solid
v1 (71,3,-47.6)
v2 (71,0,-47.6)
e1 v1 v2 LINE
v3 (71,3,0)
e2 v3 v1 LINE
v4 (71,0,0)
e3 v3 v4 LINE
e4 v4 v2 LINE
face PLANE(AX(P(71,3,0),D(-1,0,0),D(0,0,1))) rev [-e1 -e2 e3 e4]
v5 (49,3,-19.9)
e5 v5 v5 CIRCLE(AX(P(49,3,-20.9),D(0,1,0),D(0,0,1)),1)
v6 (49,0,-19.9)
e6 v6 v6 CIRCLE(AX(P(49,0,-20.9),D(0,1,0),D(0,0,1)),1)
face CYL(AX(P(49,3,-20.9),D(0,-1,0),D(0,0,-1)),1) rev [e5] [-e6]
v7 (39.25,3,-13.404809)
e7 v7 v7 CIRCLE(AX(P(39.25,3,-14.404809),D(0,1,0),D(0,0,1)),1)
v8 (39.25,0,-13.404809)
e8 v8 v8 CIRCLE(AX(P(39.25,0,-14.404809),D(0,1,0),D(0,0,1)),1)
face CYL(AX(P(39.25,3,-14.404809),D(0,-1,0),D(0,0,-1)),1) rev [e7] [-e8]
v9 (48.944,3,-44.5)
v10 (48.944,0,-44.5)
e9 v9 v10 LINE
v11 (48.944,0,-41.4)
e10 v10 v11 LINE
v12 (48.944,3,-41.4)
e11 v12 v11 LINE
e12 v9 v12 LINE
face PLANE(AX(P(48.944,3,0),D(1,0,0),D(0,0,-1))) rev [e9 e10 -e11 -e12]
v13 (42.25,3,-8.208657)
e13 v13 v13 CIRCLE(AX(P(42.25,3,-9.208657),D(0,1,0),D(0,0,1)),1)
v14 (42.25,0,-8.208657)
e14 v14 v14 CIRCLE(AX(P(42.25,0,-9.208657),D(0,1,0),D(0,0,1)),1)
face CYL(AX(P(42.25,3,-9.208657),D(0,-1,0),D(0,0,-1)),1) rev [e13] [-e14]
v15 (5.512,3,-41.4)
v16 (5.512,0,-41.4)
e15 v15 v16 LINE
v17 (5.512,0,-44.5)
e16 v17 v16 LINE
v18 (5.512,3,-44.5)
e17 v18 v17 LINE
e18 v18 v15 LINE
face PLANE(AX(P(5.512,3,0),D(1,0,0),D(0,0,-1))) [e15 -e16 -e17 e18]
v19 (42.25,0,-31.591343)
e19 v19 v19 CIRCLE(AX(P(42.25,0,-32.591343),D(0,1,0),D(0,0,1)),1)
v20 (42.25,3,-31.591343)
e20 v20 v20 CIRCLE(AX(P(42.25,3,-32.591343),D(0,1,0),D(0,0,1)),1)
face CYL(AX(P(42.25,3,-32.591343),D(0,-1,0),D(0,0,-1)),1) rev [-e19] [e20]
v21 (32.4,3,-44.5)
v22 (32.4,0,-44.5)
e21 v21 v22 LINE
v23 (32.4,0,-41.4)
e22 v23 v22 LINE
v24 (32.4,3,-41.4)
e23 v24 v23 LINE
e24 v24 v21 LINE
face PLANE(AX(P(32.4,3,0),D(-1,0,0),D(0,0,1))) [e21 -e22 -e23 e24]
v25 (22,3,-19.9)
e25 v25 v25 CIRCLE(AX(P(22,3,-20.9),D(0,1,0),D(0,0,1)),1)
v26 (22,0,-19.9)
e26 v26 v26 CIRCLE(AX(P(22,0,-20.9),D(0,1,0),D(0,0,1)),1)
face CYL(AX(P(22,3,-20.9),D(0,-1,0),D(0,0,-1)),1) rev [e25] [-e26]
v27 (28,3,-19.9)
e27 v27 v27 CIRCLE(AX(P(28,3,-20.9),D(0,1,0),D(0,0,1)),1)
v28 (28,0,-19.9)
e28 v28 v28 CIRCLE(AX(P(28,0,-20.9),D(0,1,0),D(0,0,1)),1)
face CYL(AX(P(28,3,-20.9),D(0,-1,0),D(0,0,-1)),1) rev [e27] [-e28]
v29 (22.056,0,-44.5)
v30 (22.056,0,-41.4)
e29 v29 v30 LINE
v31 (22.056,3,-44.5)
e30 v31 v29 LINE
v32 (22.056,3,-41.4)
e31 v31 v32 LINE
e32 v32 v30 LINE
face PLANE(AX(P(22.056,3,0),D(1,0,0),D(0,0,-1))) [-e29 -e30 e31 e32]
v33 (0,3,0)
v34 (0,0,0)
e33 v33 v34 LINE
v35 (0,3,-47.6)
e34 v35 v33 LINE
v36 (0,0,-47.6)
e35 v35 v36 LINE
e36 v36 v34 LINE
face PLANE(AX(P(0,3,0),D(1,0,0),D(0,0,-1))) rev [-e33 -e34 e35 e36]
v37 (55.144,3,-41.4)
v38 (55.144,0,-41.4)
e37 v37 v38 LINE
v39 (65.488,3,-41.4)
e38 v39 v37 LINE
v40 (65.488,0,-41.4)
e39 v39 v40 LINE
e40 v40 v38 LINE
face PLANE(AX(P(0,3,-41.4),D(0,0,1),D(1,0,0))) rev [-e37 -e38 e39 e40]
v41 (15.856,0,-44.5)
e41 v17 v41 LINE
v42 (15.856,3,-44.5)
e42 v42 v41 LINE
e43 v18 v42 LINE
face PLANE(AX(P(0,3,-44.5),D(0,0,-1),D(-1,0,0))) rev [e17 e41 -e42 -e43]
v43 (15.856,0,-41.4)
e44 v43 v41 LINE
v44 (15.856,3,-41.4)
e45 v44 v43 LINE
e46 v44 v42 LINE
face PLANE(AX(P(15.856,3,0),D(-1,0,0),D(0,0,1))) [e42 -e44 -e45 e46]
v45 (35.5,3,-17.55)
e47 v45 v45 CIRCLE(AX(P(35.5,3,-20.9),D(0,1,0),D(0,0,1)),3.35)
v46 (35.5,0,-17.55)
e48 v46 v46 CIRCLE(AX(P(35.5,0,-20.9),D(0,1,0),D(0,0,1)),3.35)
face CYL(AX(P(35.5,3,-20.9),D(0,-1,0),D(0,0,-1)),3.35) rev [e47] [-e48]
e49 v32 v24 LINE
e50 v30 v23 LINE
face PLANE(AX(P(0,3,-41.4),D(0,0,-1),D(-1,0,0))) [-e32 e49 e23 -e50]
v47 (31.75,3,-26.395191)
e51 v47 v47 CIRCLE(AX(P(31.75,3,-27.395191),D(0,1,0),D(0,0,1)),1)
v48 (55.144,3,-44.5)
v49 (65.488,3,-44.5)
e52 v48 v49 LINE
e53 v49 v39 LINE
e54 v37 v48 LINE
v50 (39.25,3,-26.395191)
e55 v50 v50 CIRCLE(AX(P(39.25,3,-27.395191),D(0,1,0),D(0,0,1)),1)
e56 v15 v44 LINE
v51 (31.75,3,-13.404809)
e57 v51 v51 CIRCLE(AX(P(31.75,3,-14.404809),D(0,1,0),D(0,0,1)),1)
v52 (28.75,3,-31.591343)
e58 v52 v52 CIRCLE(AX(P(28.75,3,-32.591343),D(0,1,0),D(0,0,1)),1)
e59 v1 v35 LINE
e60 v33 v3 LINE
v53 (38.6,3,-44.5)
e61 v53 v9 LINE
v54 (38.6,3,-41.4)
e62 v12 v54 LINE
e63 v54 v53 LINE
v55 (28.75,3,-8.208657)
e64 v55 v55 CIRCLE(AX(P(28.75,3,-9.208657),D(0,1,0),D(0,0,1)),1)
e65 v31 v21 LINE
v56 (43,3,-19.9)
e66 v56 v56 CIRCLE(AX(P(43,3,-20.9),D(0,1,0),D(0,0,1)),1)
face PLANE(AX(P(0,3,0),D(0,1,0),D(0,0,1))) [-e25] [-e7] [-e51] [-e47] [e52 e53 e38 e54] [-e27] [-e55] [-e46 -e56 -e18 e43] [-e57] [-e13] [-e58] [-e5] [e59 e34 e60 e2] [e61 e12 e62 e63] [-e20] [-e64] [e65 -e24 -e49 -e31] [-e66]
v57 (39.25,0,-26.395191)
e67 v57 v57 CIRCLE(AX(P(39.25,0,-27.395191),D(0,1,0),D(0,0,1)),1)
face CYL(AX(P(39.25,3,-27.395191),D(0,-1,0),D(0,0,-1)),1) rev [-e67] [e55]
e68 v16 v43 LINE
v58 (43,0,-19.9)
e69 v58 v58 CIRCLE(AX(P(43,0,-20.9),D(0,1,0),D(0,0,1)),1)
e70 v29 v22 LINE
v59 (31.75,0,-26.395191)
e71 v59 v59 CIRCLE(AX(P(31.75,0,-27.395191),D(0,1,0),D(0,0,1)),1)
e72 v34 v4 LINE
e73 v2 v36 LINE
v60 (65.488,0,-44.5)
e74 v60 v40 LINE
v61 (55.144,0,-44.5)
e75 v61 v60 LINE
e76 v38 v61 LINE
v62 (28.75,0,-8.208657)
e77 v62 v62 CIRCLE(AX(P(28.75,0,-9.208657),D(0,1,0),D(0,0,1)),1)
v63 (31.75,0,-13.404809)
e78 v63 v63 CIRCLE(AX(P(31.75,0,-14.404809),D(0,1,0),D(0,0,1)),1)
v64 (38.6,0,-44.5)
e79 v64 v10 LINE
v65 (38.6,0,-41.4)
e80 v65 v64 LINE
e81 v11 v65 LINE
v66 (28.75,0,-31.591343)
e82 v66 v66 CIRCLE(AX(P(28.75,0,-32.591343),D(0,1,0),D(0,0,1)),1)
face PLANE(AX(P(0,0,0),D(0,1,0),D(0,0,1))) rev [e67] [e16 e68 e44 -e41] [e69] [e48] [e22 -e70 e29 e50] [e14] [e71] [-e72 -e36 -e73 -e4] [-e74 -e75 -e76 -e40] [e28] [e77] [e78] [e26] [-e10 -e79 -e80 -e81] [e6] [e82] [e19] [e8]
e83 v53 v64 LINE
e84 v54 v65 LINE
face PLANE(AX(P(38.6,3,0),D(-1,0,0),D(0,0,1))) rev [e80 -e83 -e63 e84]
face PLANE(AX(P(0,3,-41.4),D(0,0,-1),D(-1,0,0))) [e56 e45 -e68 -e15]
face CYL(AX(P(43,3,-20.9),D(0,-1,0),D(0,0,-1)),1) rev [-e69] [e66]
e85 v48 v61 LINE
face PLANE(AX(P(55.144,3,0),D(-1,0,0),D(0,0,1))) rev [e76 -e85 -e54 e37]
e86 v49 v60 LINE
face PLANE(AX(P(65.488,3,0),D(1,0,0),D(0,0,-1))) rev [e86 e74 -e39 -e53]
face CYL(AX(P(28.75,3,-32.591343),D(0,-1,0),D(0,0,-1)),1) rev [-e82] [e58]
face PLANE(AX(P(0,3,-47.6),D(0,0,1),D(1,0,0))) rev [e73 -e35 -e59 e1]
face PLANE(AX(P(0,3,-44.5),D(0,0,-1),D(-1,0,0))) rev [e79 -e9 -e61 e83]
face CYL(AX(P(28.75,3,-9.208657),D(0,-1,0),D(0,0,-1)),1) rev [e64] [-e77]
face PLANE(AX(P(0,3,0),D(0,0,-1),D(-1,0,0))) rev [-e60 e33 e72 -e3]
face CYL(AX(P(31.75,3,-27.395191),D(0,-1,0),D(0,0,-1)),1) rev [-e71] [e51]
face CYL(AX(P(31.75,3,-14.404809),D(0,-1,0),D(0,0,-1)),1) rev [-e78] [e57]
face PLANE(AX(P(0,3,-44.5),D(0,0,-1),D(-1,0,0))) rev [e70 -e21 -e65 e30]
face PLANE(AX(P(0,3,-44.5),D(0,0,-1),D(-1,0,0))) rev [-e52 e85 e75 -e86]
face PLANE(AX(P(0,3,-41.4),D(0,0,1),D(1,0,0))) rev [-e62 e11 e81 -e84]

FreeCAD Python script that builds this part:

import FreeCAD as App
import Part
import Sketcher

V = App.Vector

doc = App.newDocument("Part")
params = doc.addObject("Spreadsheet::Sheet", "Params")
for row, (alias, value) in enumerate([
    ("sketch1_diameter", "2 mm"),
    ("sketch1_diameter2", "6.7 mm"),
    ("sketch1_width", "71 mm"),
    ("sketch1_height", "47.6 mm"),
    ("sketch1_height2", "3.1 mm"),
    ("pad1_length", "3 mm"),
], start=1):
    params.set(f"A{row}", alias)
    params.set(f"B{row}", "=" + value)
    params.setAlias(f"B{row}", alias)

body = doc.addObject("PartDesign::Body", "Body")

# Sketch on XZ plane
sketch1 = body.newObject("Sketcher::SketchObject", "Sketch")
sketch1.AttachmentSupport = (doc.getObject("XZ_Plane"), [""])
sketch1.MapMode = "FlatFace"
sketch1.addGeometry(Part.LineSegment(V(0, -47.6, 0), V(0, 0, 0)), False)
sketch1.addGeometry(Part.LineSegment(V(0, 0, 0), V(71, 0, 0)), False)
sketch1.addGeometry(Part.LineSegment(V(71, 0, 0), V(71, -47.6, 0)), False)
sketch1.addGeometry(Part.LineSegment(V(71, -47.6, 0), V(0, -47.6, 0)), False)
sketch1.addGeometry(Part.Circle(V(28.8, -9.2, 0), V(0, 0, 1), 1), False)
sketch1.addGeometry(Part.Circle(V(31.8, -14.4, 0), V(0, 0, 1), 1), False)
sketch1.addGeometry(Part.Circle(V(22, -20.9, 0), V(0, 0, 1), 1), False)
sketch1.addGeometry(Part.Circle(V(28, -20.9, 0), V(0, 0, 1), 1), False)
sketch1.addGeometry(Part.Circle(V(42.2, -9.2, 0), V(0, 0, 1), 1), False)
sketch1.addGeometry(Part.Circle(V(39.2, -14.4, 0), V(0, 0, 1), 1), False)
sketch1.addGeometry(Part.Circle(V(35.5, -20.9, 0), V(0, 0, 1), 3.4), False)
sketch1.addGeometry(Part.Circle(V(43, -20.9, 0), V(0, 0, 1), 1), False)
sketch1.addGeometry(Part.Circle(V(49, -20.9, 0), V(0, 0, 1), 1), False)
sketch1.addGeometry(Part.Circle(V(31.8, -27.4, 0), V(0, 0, 1), 1), False)
sketch1.addGeometry(Part.Circle(V(28.8, -32.6, 0), V(0, 0, 1), 1), False)
sketch1.addGeometry(Part.LineSegment(V(15.9, -41.4, 0), V(5.5, -41.4, 0)), False)
sketch1.addGeometry(Part.LineSegment(V(5.5, -41.4, 0), V(5.5, -44.5, 0)), False)
sketch1.addGeometry(Part.LineSegment(V(5.5, -44.5, 0), V(15.9, -44.5, 0)), False)
sketch1.addGeometry(Part.LineSegment(V(15.9, -44.5, 0), V(15.9, -41.4, 0)), False)
sketch1.addGeometry(Part.LineSegment(V(32.4, -41.4, 0), V(22.1, -41.4, 0)), False)
sketch1.addGeometry(Part.LineSegment(V(22.1, -41.4, 0), V(22.1, -44.5, 0)), False)
sketch1.addGeometry(Part.LineSegment(V(22.1, -44.5, 0), V(32.4, -44.5, 0)), False)
sketch1.addGeometry(Part.LineSegment(V(32.4, -44.5, 0), V(32.4, -41.4, 0)), False)
sketch1.addGeometry(Part.Circle(V(39.2, -27.4, 0), V(0, 0, 1), 1), False)
sketch1.addGeometry(Part.Circle(V(42.2, -32.6, 0), V(0, 0, 1), 1), False)
sketch1.addGeometry(Part.LineSegment(V(48.9, -41.4, 0), V(38.6, -41.4, 0)), False)
sketch1.addGeometry(Part.LineSegment(V(38.6, -41.4, 0), V(38.6, -44.5, 0)), False)
sketch1.addGeometry(Part.LineSegment(V(38.6, -44.5, 0), V(48.9, -44.5, 0)), False)
sketch1.addGeometry(Part.LineSegment(V(48.9, -44.5, 0), V(48.9, -41.4, 0)), False)
sketch1.addGeometry(Part.LineSegment(V(65.5, -41.4, 0), V(55.1, -41.4, 0)), False)
sketch1.addGeometry(Part.LineSegment(V(55.1, -41.4, 0), V(55.1, -44.5, 0)), False)
sketch1.addGeometry(Part.LineSegment(V(55.1, -44.5, 0), V(65.5, -44.5, 0)), False)
sketch1.addGeometry(Part.LineSegment(V(65.5, -44.5, 0), V(65.5, -41.4, 0)), False)
sketch1.addConstraint(Sketcher.Constraint("Coincident", 0, 2, 1, 1))
sketch1.addConstraint(Sketcher.Constraint("Coincident", 1, 2, 2, 1))
sketch1.addConstraint(Sketcher.Constraint("Coincident", 2, 2, 3, 1))
sketch1.addConstraint(Sketcher.Constraint("Coincident", 3, 2, 0, 1))
sketch1.addConstraint(Sketcher.Constraint("Coincident", 15, 2, 16, 1))
sketch1.addConstraint(Sketcher.Constraint("Coincident", 16, 2, 17, 1))
sketch1.addConstraint(Sketcher.Constraint("Coincident", 17, 2, 18, 1))
sketch1.addConstraint(Sketcher.Constraint("Coincident", 18, 2, 15, 1))
sketch1.addConstraint(Sketcher.Constraint("Coincident", 19, 2, 20, 1))
sketch1.addConstraint(Sketcher.Constraint("Coincident", 20, 2, 21, 1))
sketch1.addConstraint(Sketcher.Constraint("Coincident", 21, 2, 22, 1))
sketch1.addConstraint(Sketcher.Constraint("Coincident", 22, 2, 19, 1))
sketch1.addConstraint(Sketcher.Constraint("Coincident", 25, 2, 26, 1))
sketch1.addConstraint(Sketcher.Constraint("Coincident", 26, 2, 27, 1))
sketch1.addConstraint(Sketcher.Constraint("Coincident", 27, 2, 28, 1))
sketch1.addConstraint(Sketcher.Constraint("Coincident", 28, 2, 25, 1))
sketch1.addConstraint(Sketcher.Constraint("Coincident", 29, 2, 30, 1))
sketch1.addConstraint(Sketcher.Constraint("Coincident", 30, 2, 31, 1))
sketch1.addConstraint(Sketcher.Constraint("Coincident", 31, 2, 32, 1))
sketch1.addConstraint(Sketcher.Constraint("Coincident", 32, 2, 29, 1))
sketch1.addConstraint(Sketcher.Constraint("Vertical", 0))
sketch1.addConstraint(Sketcher.Constraint("Horizontal", 1))
sketch1.addConstraint(Sketcher.Constraint("Vertical", 2))
sketch1.addConstraint(Sketcher.Constraint("Horizontal", 3))
sketch1.addConstraint(Sketcher.Constraint("Horizontal", 15))
sketch1.addConstraint(Sketcher.Constraint("Vertical", 16))
sketch1.addConstraint(Sketcher.Constraint("Horizontal", 17))
sketch1.addConstraint(Sketcher.Constraint("Vertical", 18))
sketch1.addConstraint(Sketcher.Constraint("Horizontal", 19))
sketch1.addConstraint(Sketcher.Constraint("Vertical", 20))
sketch1.addConstraint(Sketcher.Constraint("Horizontal", 21))
sketch1.addConstraint(Sketcher.Constraint("Vertical", 22))
sketch1.addConstraint(Sketcher.Constraint("Horizontal", 25))
sketch1.addConstraint(Sketcher.Constraint("Vertical", 26))
sketch1.addConstraint(Sketcher.Constraint("Horizontal", 27))
sketch1.addConstraint(Sketcher.Constraint("Vertical", 28))
sketch1.addConstraint(Sketcher.Constraint("Horizontal", 29))
sketch1.addConstraint(Sketcher.Constraint("Vertical", 30))
sketch1.addConstraint(Sketcher.Constraint("Horizontal", 31))
sketch1.addConstraint(Sketcher.Constraint("Vertical", 32))
sketch1.addConstraint(Sketcher.Constraint("Coincident", 0, 2, -1, 1))
sketch1.addConstraint(Sketcher.Constraint("Equal", 4, 5))
sketch1.addConstraint(Sketcher.Constraint("Equal", 5, 6))
sketch1.addConstraint(Sketcher.Constraint("Equal", 6, 7))
sketch1.addConstraint(Sketcher.Constraint("Equal", 7, 8))
sketch1.addConstraint(Sketcher.Constraint("Equal", 8, 9))
sketch1.addConstraint(Sketcher.Constraint("Equal", 9, 11))
sketch1.addConstraint(Sketcher.Constraint("Equal", 11, 12))
sketch1.addConstraint(Sketcher.Constraint("Equal", 12, 13))
sketch1.addConstraint(Sketcher.Constraint("Equal", 13, 14))
sketch1.addConstraint(Sketcher.Constraint("Equal", 14, 23))
sketch1.addConstraint(Sketcher.Constraint("Equal", 23, 24))
sketch1.addConstraint(Sketcher.Constraint("Horizontal", 6, 3, 7, 3))
sketch1.addConstraint(Sketcher.Constraint("Horizontal", 4, 3, 8, 3))
sketch1.addConstraint(Sketcher.Constraint("Horizontal", 5, 3, 9, 3))
sketch1.addConstraint(Sketcher.Constraint("Horizontal", 7, 3, 10, 3))
sketch1.addConstraint(Sketcher.Constraint("Horizontal", 10, 3, 11, 3))
sketch1.addConstraint(Sketcher.Constraint("Horizontal", 11, 3, 12, 3))
sketch1.addConstraint(Sketcher.Constraint("Horizontal", 13, 3, 23, 3))
sketch1.addConstraint(Sketcher.Constraint("Horizontal", 14, 3, 24, 3))
sketch1.addConstraint(Sketcher.Constraint("Horizontal", 18, 2, 19, 2))
sketch1.addConstraint(Sketcher.Constraint("Horizontal", 17, 2, 20, 2))
sketch1.addConstraint(Sketcher.Constraint("Horizontal", 22, 2, 25, 2))
sketch1.addConstraint(Sketcher.Constraint("Horizontal", 21, 2, 26, 2))
sketch1.addConstraint(Sketcher.Constraint("Horizontal", 28, 2, 29, 2))
sketch1.addConstraint(Sketcher.Constraint("Horizontal", 27, 2, 30, 2))
sketch1.addConstraint(Sketcher.Constraint("Vertical", 5, 3, 13, 3))
sketch1.addConstraint(Sketcher.Constraint("Vertical", 4, 3, 14, 3))
sketch1.addConstraint(Sketcher.Constraint("Vertical", 9, 3, 23, 3))
sketch1.addConstraint(Sketcher.Constraint("Vertical", 8, 3, 24, 3))
sketch1.addConstraint(Sketcher.Constraint("Equal", 17, 19))
sketch1.addConstraint(Sketcher.Constraint("Equal", 21, 25))
sketch1.addConstraint(Sketcher.Constraint("Equal", 27, 29))
sketch1.addConstraint(Sketcher.Constraint("Diameter", 4, 2.0))
sketch1.addConstraint(Sketcher.Constraint("Diameter", 10, 6.7))
sketch1.addConstraint(Sketcher.Constraint("DistanceX", 1, 1, 1, 2, 71.0))
sketch1.addConstraint(Sketcher.Constraint("DistanceY", 0, 1, 0, 2, 47.6))
sketch1.addConstraint(Sketcher.Constraint("DistanceY", 16, 2, 16, 1, 3.1))
sketch1.addConstraint(Sketcher.Constraint("DistanceX", -1, 1, 6, 3, 22.0))
sketch1.addConstraint(Sketcher.Constraint("DistanceX", -1, 1, 7, 3, 28.0))
sketch1.addConstraint(Sketcher.Constraint("DistanceX", -1, 1, 11, 3, 43.0))
sketch1.addConstraint(Sketcher.Constraint("DistanceX", -1, 1, 12, 3, 49.0))
sketch1.addConstraint(Sketcher.Constraint("DistanceX", 4, 3, 5, 3, 3.0))
sketch1.addConstraint(Sketcher.Constraint("DistanceX", 9, 3, 8, 3, 3.0))
sketch1.addConstraint(Sketcher.Constraint("DistanceY", 6, 3, -1, 1, 20.9))
sketch1.addConstraint(Sketcher.Constraint("DistanceX", -1, 1, 10, 3, 35.5))
sketch1.addConstraint(Sketcher.Constraint("DistanceY", 15, 2, -1, 1, 41.4))
sketch1.addConstraint(Sketcher.Constraint("DistanceX", -1, 1, 21, 2, 32.4))
sketch1.addConstraint(Sketcher.Constraint("DistanceX", -1, 1, 25, 2, 38.6))
sketch1.addConstraint(Sketcher.Constraint("DistanceX", 5, 3, 8, 3, 10.5))
sketch1.addConstraint(Sketcher.Constraint("DistanceX", 18, 2, 19, 2, 6.2))
sketch1.addConstraint(Sketcher.Constraint("DistanceX", 28, 2, 29, 2, 6.2))
sketch1.addConstraint(Sketcher.Constraint("DistanceX", 15, 2, 15, 1, 10.344))
sketch1.addConstraint(Sketcher.Constraint("DistanceX", -1, 1, 4, 3, 28.75))
sketch1.addConstraint(Sketcher.Constraint("DistanceY", 5, 3, -1, 1, 14.404809))
sketch1.addConstraint(Sketcher.Constraint("DistanceY", 13, 3, -1, 1, 27.395191))
sketch1.addConstraint(Sketcher.Constraint("DistanceY", 4, 3, -1, 1, 9.208657))
sketch1.addConstraint(Sketcher.Constraint("DistanceY", 14, 3, -1, 1, 32.591343))
sketch1.setExpression("Constraints[73]", "Params.sketch1_diameter")
sketch1.setExpression("Constraints[74]", "Params.sketch1_diameter2")
sketch1.setExpression("Constraints[75]", "Params.sketch1_width")
sketch1.setExpression("Constraints[76]", "Params.sketch1_height")
sketch1.setExpression("Constraints[77]", "Params.sketch1_height2")
pad1 = body.newObject("PartDesign::Pad", "Pad")
pad1.Profile = sketch1
pad1.setExpression("Length", "Params.pad1_length")
pad1.Reversed = True

doc.recompute()
